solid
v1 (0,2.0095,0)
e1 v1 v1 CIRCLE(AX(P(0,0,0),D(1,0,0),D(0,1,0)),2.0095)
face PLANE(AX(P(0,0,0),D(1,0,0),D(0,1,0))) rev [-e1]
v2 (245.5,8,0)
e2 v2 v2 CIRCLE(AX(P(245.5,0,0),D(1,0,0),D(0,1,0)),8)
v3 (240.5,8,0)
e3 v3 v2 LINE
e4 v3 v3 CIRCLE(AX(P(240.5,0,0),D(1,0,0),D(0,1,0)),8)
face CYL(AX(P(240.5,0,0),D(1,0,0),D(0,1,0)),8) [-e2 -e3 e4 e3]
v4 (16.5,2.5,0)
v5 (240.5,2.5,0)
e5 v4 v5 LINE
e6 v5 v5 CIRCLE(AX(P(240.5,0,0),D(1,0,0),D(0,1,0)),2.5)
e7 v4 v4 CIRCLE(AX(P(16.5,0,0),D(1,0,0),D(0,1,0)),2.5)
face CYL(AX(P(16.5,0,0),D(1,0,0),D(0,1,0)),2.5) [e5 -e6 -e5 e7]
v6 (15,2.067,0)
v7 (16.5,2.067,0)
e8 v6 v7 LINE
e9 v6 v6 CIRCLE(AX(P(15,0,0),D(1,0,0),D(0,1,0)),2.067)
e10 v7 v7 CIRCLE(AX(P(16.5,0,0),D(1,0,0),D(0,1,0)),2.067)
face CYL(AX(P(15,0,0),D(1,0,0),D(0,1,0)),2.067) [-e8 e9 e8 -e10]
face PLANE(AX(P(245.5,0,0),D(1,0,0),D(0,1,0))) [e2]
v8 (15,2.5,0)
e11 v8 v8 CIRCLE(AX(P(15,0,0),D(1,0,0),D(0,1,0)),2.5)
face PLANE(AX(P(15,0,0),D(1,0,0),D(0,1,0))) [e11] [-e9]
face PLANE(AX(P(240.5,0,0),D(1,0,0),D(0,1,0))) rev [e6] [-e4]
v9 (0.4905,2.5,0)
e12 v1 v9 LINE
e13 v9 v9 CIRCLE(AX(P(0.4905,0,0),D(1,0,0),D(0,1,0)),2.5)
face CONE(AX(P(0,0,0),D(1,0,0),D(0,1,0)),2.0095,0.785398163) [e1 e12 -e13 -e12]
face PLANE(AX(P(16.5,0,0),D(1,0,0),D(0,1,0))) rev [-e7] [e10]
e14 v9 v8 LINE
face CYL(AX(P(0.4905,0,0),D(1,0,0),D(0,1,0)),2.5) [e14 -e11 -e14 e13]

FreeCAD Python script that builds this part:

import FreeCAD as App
import Part
import Sketcher
Q = App.Units.Quantity

doc = App.newDocument("Part")
body = doc.addObject("PartDesign::Body", "Body")

# Sketch on XY plane
sketch1 = body.newObject("Sketcher::SketchObject", "Sketch")
sketch1.AttachmentSupport = (doc.getObject("XY_Plane"), [""])
sketch1.MapMode = "FlatFace"
sketch1.addGeometry([
    Part.LineSegment(App.Vector(0, 0, 0), App.Vector(245.5, 0, 0)),  # 0
    Part.LineSegment(App.Vector(245.5, 0, 0), App.Vector(245.5, 8, 0)),  # 1
    Part.LineSegment(App.Vector(245.5, 8, 0), App.Vector(240.5, 8, 0)),  # 2
    Part.LineSegment(App.Vector(240.5, 8, 0), App.Vector(240.5, 2.5, 0)),  # 3
    Part.LineSegment(App.Vector(240.5, 2.5, 0), App.Vector(16.5, 2.5, 0)),  # 4
    Part.LineSegment(App.Vector(16.5, 2.5, 0), App.Vector(16.5, 2.067, 0)),  # 5
    Part.LineSegment(App.Vector(16.5, 2.067, 0), App.Vector(15, 2.067, 0)),  # 6
    Part.LineSegment(App.Vector(15, 2.067, 0), App.Vector(15, 2.5, 0)),  # 7
    Part.LineSegment(App.Vector(15, 2.5, 0), App.Vector(0.4905, 2.5, 0)),  # 8
    Part.LineSegment(App.Vector(0.4905, 2.5, 0), App.Vector(0, 2.0095, 0)),  # 9
    Part.LineSegment(App.Vector(0, 2.0095, 0), App.Vector(0, 0, 0)),  # 10
], False)
sketch1.addConstraint([
    Sketcher.Constraint("Coincident", 0, 2, 1, 1),
    Sketcher.Constraint("Coincident", 1, 2, 2, 1),
    Sketcher.Constraint("Coincident", 2, 2, 3, 1),
    Sketcher.Constraint("Coincident", 3, 2, 4, 1),
    Sketcher.Constraint("Coincident", 4, 2, 5, 1),
    Sketcher.Constraint("Coincident", 5, 2, 6, 1),
    Sketcher.Constraint("Coincident", 6, 2, 7, 1),
    Sketcher.Constraint("Coincident", 7, 2, 8, 1),
    Sketcher.Constraint("Coincident", 8, 2, 9, 1),
    Sketcher.Constraint("Coincident", 9, 2, 10, 1),
    Sketcher.Constraint("Coincident", 10, 2, 0, 1),
    Sketcher.Constraint("Horizontal", 0),
    Sketcher.Constraint("Vertical", 1),
    Sketcher.Constraint("Horizontal", 2),
    Sketcher.Constraint("Vertical", 3),
    Sketcher.Constraint("Horizontal", 4),
    Sketcher.Constraint("Vertical", 5),
    Sketcher.Constraint("Horizontal", 6),
    Sketcher.Constraint("Vertical", 7),
    Sketcher.Constraint("Horizontal", 8),
    Sketcher.Constraint("Vertical", 10),
    Sketcher.Constraint("Coincident", 10, 2, -1, 1),
    Sketcher.Constraint("Horizontal", 4, 2, 7, 2),
    Sketcher.Constraint("DistanceX", 2, 2, 2, 1, 5.0),
    Sketcher.Constraint("DistanceX", 4, 2, 4, 1, 224.0),
    Sketcher.Constraint("DistanceY", 1, 1, 1, 2, 8.0),
    Sketcher.Constraint("Angle", 9, Q("-135 deg")),
    Sketcher.Constraint("DistanceX", 0, 1, 0, 2, 245.5),
    Sketcher.Constraint("DistanceX", 6, 2, 6, 1, 1.5),
    Sketcher.Constraint("DistanceY", 3, 2, 3, 1, 5.5),
    Sketcher.Constraint("DistanceY", 5, 2, 5, 1, 0.433),
    Sketcher.Constraint("DistanceX", 8, 2, 8, 1, 14.5095),
])
revolution = body.newObject("PartDesign::Revolution", "Revolution")
revolution.Profile = sketch1
revolution.ReferenceAxis = (sketch1, ["H_Axis"])
revolution.Angle = 360

doc.recompute()
